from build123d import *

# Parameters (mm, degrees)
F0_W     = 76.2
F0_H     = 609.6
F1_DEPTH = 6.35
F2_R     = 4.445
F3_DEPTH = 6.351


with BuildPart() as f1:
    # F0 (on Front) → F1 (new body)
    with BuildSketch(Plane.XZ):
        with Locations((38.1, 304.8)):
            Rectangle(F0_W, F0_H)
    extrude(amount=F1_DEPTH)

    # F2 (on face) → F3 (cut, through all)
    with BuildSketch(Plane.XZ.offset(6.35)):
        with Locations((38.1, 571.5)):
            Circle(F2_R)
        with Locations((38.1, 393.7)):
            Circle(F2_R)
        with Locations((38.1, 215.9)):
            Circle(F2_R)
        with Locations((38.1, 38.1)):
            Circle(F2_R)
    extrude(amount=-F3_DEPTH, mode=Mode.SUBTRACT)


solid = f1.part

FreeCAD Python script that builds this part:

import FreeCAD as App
import Part
import Sketcher
from FreeCAD import Vector
Q = App.Units.Quantity

doc = App.newDocument("Part")
body = doc.addObject("PartDesign::Body", "Body")

sketch1 = doc.addObject("Sketcher::SketchObject", "Sketch")
body.addObject(sketch1)
sketch1.AttachmentSupport = (doc.XZ_Plane, [""])
sketch1.MapMode = "FlatFace"
sketch1.addGeometry([
    Part.LineSegment(Vector(0, 610, 0), Vector(0, 0, 0)),
    Part.LineSegment(Vector(0, 0, 0), Vector(76, 0, 0)),
    Part.LineSegment(Vector(76, 0, 0), Vector(76, 610, 0)),
    Part.LineSegment(Vector(76, 610, 0), Vector(0, 610, 0)),
], False)
sketch1.addConstraint([
    Sketcher.Constraint("Coincident", 0, 2, 1, 1),
    Sketcher.Constraint("Coincident", 1, 2, 2, 1),
    Sketcher.Constraint("Coincident", 2, 2, 3, 1),
    Sketcher.Constraint("Coincident", 3, 2, 0, 1),
    Sketcher.Constraint("Vertical", 0),
    Sketcher.Constraint("Horizontal", 1),
    Sketcher.Constraint("Vertical", 2),
    Sketcher.Constraint("Horizontal", 3),
    Sketcher.Constraint("Coincident", 0, 2, -1, 1),
    Sketcher.Constraint("DistanceX", 1, 1, 1, 2, Q("3 in")),
    Sketcher.Constraint("DistanceY", 0, 2, 0, 1, Q("24 in")),
])
pad1 = doc.addObject("PartDesign::Pad", "Pad")
body.addObject(pad1)
pad1.Profile = sketch1
pad1.Length = Q("0.25 in")

sketch2 = doc.addObject("Sketcher::SketchObject", "Sketch001")
body.addObject(sketch2)
sketch2.AttachmentSupport = (doc.XZ_Plane, [""])
sketch2.MapMode = "FlatFace"
sketch2.AttachmentOffset = App.Placement(Vector(0, 0, 0.25 * 25.4), App.Rotation())
sketch2.addGeometry([
    Part.Circle(Vector(38.1, 571.5, 0), Vector(0, 0, 1), 4.4),
    Part.Circle(Vector(38.1, 393.7, 0), Vector(0, 0, 1), 4.4),
    Part.Circle(Vector(38.1, 215.9, 0), Vector(0, 0, 1), 4.4),
    Part.Circle(Vector(38.1, 38.1, 0), Vector(0, 0, 1), 4.4),
], False)
sketch2.addConstraint([
    Sketcher.Constraint("Equal", 0, 1),
    Sketcher.Constraint("Equal", 1, 2),
    Sketcher.Constraint("Equal", 2, 3),
    Sketcher.Constraint("Vertical", 0, 3, 1, 3),
    Sketcher.Constraint("Vertical", 1, 3, 2, 3),
    Sketcher.Constraint("Vertical", 2, 3, 3, 3),
    Sketcher.Constraint("Diameter", 0, Q("0.35 in")),
    Sketcher.Constraint("DistanceY", 1, 3, 0, 3, Q("7 in")),
    Sketcher.Constraint("DistanceY", 2, 3, 1, 3, Q("7 in")),
    Sketcher.Constraint("DistanceY", 3, 3, 2, 3, Q("7 in")),
    Sketcher.Constraint("DistanceX", -1, 1, 0, 3, Q("1.5 in")),
    Sketcher.Constraint("DistanceY", -1, 1, 0, 3, Q("22.5 in")),
])
pocket1 = doc.addObject("PartDesign::Pocket", "Pocket")
body.addObject(pocket1)
pocket1.Profile = sketch2
pocket1.Type = "ThroughAll"

doc.recompute()
